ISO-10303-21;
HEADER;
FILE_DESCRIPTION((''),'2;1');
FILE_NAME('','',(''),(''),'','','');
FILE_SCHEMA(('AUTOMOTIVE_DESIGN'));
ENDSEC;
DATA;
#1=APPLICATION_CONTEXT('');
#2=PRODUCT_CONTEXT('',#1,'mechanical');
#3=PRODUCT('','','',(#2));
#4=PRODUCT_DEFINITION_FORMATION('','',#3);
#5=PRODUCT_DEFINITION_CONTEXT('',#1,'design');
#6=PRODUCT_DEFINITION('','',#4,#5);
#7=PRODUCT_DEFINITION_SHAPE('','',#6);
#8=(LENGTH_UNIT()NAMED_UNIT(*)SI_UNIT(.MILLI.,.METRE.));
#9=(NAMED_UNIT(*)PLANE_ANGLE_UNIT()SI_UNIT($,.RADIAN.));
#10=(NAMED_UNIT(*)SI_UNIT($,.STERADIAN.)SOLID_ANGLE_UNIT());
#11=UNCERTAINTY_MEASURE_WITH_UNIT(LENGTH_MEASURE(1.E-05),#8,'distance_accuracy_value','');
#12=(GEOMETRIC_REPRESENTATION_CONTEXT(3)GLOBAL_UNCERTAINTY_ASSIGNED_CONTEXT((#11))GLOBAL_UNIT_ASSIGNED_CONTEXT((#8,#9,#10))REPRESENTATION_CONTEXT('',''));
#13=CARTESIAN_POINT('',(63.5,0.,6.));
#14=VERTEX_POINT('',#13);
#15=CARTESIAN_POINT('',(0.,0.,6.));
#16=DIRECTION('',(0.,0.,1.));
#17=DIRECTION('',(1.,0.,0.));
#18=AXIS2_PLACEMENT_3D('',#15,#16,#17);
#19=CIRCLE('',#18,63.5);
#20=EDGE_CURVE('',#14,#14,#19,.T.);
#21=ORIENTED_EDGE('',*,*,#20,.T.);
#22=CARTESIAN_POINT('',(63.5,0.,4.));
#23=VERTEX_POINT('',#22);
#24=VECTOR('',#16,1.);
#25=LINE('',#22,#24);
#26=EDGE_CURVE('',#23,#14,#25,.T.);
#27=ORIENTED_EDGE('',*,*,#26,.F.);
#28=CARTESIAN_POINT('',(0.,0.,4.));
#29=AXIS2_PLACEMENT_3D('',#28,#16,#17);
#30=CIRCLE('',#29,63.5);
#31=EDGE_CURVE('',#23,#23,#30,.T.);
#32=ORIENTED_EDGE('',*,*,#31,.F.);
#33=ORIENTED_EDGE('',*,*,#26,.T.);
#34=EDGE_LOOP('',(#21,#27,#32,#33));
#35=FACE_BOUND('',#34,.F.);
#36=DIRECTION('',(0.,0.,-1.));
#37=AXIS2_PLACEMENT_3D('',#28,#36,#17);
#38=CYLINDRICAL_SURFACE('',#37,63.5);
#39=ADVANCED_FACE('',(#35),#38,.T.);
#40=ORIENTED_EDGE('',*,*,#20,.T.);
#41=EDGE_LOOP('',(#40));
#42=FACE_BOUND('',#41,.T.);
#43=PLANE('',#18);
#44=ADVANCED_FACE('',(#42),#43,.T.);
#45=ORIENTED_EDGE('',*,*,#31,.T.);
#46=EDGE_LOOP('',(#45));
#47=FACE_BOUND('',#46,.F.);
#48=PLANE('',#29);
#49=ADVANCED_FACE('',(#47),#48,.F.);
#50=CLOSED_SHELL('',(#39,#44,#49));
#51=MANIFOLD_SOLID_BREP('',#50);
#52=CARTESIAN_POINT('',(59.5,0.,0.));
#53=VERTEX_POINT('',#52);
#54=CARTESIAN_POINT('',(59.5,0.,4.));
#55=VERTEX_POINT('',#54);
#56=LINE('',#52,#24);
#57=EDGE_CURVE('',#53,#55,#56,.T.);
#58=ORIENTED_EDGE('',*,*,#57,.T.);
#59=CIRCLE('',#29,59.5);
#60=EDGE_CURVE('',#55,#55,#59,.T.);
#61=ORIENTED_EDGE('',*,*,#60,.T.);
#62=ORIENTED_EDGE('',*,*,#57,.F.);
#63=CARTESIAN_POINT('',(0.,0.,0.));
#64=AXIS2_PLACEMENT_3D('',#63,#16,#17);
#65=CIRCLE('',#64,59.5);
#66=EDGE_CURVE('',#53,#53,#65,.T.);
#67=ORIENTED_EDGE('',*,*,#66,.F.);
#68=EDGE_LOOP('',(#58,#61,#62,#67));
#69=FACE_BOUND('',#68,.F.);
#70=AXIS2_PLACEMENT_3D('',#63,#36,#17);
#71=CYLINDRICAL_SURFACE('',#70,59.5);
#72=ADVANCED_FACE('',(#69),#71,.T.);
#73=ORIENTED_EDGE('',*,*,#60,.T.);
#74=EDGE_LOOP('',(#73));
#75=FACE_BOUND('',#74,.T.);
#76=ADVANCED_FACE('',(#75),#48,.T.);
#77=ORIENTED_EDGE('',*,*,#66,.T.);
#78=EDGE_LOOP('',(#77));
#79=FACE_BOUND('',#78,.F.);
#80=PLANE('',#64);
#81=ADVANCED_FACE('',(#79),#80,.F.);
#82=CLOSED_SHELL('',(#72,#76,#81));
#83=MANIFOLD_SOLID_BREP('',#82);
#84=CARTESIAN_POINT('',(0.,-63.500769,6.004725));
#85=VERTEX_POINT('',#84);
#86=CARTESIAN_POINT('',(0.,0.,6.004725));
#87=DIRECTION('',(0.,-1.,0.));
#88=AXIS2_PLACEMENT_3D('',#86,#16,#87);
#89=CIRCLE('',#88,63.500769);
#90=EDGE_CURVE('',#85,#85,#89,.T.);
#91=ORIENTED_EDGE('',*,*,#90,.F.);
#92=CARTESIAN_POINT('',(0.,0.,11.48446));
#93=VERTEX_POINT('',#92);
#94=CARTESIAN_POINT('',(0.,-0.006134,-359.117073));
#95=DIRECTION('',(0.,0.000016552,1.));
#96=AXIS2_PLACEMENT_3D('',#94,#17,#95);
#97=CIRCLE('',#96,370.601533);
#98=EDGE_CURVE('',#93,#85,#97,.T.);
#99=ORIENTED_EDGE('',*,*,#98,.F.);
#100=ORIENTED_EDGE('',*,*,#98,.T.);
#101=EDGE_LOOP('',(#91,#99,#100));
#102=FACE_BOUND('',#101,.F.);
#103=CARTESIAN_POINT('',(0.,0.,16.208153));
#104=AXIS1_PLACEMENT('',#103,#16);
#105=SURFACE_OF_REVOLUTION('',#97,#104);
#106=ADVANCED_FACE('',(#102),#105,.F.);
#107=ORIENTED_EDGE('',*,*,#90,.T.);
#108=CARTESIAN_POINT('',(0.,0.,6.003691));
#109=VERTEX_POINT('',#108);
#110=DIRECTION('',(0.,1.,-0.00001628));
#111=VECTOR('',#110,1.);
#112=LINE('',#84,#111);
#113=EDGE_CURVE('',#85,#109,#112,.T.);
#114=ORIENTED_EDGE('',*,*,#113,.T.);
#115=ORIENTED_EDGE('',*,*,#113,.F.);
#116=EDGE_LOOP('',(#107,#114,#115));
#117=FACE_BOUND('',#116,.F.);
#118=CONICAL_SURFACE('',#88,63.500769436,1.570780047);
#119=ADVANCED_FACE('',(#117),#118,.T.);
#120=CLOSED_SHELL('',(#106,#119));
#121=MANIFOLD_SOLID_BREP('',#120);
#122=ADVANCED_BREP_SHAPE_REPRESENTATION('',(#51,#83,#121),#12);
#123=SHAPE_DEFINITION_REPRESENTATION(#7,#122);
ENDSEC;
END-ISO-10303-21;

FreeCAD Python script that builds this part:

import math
import FreeCAD as App
import Part
import Sketcher
from FreeCAD import Vector

doc = App.newDocument("Part")
body = doc.addObject("PartDesign::Body", "Body")

sketch1 = body.newObject("Sketcher::SketchObject", "Sketch")
sketch1.AttachmentSupport = (doc.getObject("XY_Plane"), [""])
sketch1.MapMode = "FlatFace"
sketch1.addGeometry(Part.Circle(Vector(0, 0, 0), Vector(0, 0, 1), 59.5), False)
sketch1.addConstraint([
    Sketcher.Constraint("Coincident", 0, 3, -1, 1),
    Sketcher.Constraint("Diameter", 0, 119.0),
])
pad1 = body.newObject("PartDesign::Pad", "Pad")
pad1.Profile = sketch1
pad1.Length = 4
body2 = doc.addObject("PartDesign::Body", "Body001")

sketch2 = body2.newObject("Sketcher::SketchObject", "Sketch001")
sketch2.AttachmentSupport = (doc.getObject("XY_Plane001"), [""])
sketch2.MapMode = "FlatFace"
sketch2.AttachmentOffset = App.Placement(Vector(0, 0, 4), App.Rotation())
sketch2.addGeometry(Part.Circle(Vector(0, 0, 0), Vector(0, 0, 1), 63.5), False)
sketch2.addConstraint([
    Sketcher.Constraint("Coincident", 0, 3, -1, 1),
    Sketcher.Constraint("Diameter", 0, 127.0),
])
pad2 = body2.newObject("PartDesign::Pad", "Pad001")
pad2.Profile = sketch2
pad2.Length = 2
body3 = doc.addObject("PartDesign::Body", "Body002")

sketch3 = body3.newObject("Sketcher::SketchObject", "Sketch002")
sketch3.AttachmentSupport = (doc.getObject("YZ_Plane002"), [""])
sketch3.MapMode = "FlatFace"
sketch3.addGeometry([
    Part.LineSegment(Vector(0, 6.003691, 0), Vector(0, 11.48446, 0)),
    Part.ArcOfCircle(Part.Circle(Vector(-0.006134, -359.117073, 0), Vector(0, 0, 1), 370.601533), math.radians(89.999052), math.radians(99.865075)),
    Part.LineSegment(Vector(-63.500769, 6.004725, 0), Vector(0, 6.003691, 0)),
], False)
sketch3.addConstraint([
    Sketcher.Constraint("Coincident", 0, 2, 1, 1),
    Sketcher.Constraint("Coincident", 1, 2, 2, 1),
    Sketcher.Constraint("Coincident", 2, 2, 0, 1),
    Sketcher.Constraint("Vertical", 0),
    Sketcher.Constraint("PointOnObject", 0, 2, -2),
    Sketcher.Constraint("Radius", 1, 370.601533),
    Sketcher.Constraint("DistanceY", 0, 1, 0, 2, 5.480768),
    Sketcher.Constraint("DistanceY", 1, 3, 1, 2, 365.121798),
    Sketcher.Constraint("Distance", 2, 63.500769),
    Sketcher.Constraint("DistanceY", -1, 1, 0, 2, 11.48446),
])
revolution = body3.newObject("PartDesign::Revolution", "Revolution")
revolution.Profile = sketch3
revolution.ReferenceAxis = (sketch3, ["V_Axis"])
revolution.Angle = 360

doc.recompute()
